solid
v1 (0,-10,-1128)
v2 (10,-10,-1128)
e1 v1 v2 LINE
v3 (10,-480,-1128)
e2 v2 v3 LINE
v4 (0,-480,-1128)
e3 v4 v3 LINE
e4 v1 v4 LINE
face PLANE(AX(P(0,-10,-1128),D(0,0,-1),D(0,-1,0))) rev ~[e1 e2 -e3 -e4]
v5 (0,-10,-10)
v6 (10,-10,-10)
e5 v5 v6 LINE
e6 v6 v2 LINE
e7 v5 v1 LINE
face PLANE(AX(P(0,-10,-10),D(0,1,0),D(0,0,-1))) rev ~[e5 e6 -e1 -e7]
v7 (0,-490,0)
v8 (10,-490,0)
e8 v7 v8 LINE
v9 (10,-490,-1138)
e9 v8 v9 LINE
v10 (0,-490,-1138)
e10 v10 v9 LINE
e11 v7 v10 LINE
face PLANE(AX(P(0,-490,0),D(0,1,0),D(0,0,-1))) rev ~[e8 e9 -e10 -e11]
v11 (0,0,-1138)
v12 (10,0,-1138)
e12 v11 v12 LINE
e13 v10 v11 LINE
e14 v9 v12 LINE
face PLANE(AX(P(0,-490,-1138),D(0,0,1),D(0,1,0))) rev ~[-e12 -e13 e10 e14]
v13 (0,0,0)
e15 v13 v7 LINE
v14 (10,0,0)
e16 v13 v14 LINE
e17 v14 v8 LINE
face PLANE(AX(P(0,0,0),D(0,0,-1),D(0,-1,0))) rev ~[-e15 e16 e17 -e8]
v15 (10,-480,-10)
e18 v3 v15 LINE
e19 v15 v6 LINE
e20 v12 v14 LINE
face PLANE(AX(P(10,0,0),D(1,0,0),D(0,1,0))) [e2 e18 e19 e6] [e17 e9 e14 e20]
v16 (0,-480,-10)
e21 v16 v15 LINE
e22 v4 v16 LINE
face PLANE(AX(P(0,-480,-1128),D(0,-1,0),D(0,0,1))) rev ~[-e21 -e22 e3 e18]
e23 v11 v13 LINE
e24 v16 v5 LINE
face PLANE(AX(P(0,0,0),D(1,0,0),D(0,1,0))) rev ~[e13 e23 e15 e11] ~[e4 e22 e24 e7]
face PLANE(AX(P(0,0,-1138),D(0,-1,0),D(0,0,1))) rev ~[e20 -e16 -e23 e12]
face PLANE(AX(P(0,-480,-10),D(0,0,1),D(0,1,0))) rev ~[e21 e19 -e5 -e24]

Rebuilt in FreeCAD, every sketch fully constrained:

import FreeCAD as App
import Part
import Sketcher
from FreeCAD import Vector

doc = App.newDocument("Part")
body = doc.addObject("PartDesign::Body", "Body")

sketch1 = body.newObject("Sketcher::SketchObject", "Sketch")
sketch1.AttachmentSupport = (doc.getObject("YZ_Plane"), [""])
sketch1.MapMode = "FlatFace"
sketch1.addGeometry([
    Part.LineSegment(Vector(0, -1138, 0), Vector(0, 0, 0)),
    Part.LineSegment(Vector(0, 0, 0), Vector(-490, 0, 0)),
    Part.LineSegment(Vector(-490, 0, 0), Vector(-490, -1138, 0)),
    Part.LineSegment(Vector(-490, -1138, 0), Vector(0, -1138, 0)),
    Part.LineSegment(Vector(-10, -1128, 0), Vector(-480, -1128, 0)),
    Part.LineSegment(Vector(-480, -1128, 0), Vector(-480, -10, 0)),
    Part.LineSegment(Vector(-480, -10, 0), Vector(-10, -10, 0)),
    Part.LineSegment(Vector(-10, -10, 0), Vector(-10, -1128, 0)),
], False)
sketch1.addConstraint([
    Sketcher.Constraint("Coincident", 0, 2, 1, 1),
    Sketcher.Constraint("Coincident", 1, 2, 2, 1),
    Sketcher.Constraint("Coincident", 2, 2, 3, 1),
    Sketcher.Constraint("Coincident", 3, 2, 0, 1),
    Sketcher.Constraint("Coincident", 4, 2, 5, 1),
    Sketcher.Constraint("Coincident", 5, 2, 6, 1),
    Sketcher.Constraint("Coincident", 6, 2, 7, 1),
    Sketcher.Constraint("Coincident", 7, 2, 4, 1),
    Sketcher.Constraint("Vertical", 0),
    Sketcher.Constraint("Horizontal", 1),
    Sketcher.Constraint("Vertical", 2),
    Sketcher.Constraint("Horizontal", 3),
    Sketcher.Constraint("Horizontal", 4),
    Sketcher.Constraint("Vertical", 5),
    Sketcher.Constraint("Horizontal", 6),
    Sketcher.Constraint("Vertical", 7),
    Sketcher.Constraint("Coincident", 0, 2, -1, 1),
    Sketcher.Constraint("DistanceX", 1, 2, 1, 1, 490.0),
    Sketcher.Constraint("DistanceX", 4, 2, 4, 1, 470.0),
    Sketcher.Constraint("DistanceY", 0, 1, 0, 2, 1138.0),
    Sketcher.Constraint("DistanceY", 5, 2, -1, 1, 10.0),
    Sketcher.Constraint("DistanceX", 6, 2, -1, 1, 10.0),
    Sketcher.Constraint("DistanceY", 2, 2, 4, 2, 10.0),
])
pad1 = body.newObject("PartDesign::Pad", "Pad")
pad1.Profile = sketch1
pad1.Length = 10

doc.recompute()
